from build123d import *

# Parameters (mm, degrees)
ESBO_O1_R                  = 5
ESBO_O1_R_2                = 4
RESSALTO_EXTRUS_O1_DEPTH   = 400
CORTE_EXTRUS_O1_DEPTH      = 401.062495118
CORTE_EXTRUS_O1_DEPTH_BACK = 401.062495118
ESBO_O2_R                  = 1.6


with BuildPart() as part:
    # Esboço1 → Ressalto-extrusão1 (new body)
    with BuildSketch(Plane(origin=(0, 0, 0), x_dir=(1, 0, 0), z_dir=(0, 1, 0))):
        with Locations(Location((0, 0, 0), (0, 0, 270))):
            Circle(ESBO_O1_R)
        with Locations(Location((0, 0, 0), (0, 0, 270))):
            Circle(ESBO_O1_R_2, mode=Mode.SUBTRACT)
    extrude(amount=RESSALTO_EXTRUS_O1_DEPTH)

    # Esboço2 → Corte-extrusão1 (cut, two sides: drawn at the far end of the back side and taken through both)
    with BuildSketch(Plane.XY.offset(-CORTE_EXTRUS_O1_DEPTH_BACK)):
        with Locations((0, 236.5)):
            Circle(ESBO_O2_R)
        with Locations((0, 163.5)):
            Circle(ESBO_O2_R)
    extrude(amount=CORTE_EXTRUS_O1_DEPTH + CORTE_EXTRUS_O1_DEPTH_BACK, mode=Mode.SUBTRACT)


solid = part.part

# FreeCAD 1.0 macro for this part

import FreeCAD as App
import Part
import Sketcher
from FreeCAD import Vector

doc = App.newDocument("Part")
body = doc.addObject("PartDesign::Body", "Body")

# Sketch on XZ plane
sketch1 = body.newObject("Sketcher::SketchObject", "Sketch")
sketch1.AttachmentSupport = (doc.getObject("XZ_Plane"), [""])
sketch1.MapMode = "FlatFace"
sketch1.addGeometry(Part.Circle(Vector(0, 0, 0), Vector(0, 0, 1), 5), False)
sketch1.addGeometry(Part.Circle(Vector(0, 0, 0), Vector(0, 0, 1), 4), False)
sketch1.addConstraint(Sketcher.Constraint("Coincident", 0, 3, -1, 1))
sketch1.addConstraint(Sketcher.Constraint("Coincident", 1, 3, -1, 1))
sketch1.addConstraint(Sketcher.Constraint("Diameter", 0, 10.0))
sketch1.addConstraint(Sketcher.Constraint("Diameter", 1, 8.0))
pad1 = body.newObject("PartDesign::Pad", "Pad")
pad1.Profile = sketch1
pad1.Length = 400
pad1.Reversed = True

# Sketch on XY plane
sketch2 = body.newObject("Sketcher::SketchObject", "Sketch001")
sketch2.AttachmentSupport = (doc.getObject("XY_Plane"), [""])
sketch2.MapMode = "FlatFace"
sketch2.addGeometry(Part.Circle(Vector(0, 236.5, 0), Vector(0, 0, 1), 1.6), False)
sketch2.addGeometry(Part.Circle(Vector(0, 163.5, 0), Vector(0, 0, 1), 1.6), False)
sketch2.addConstraint(Sketcher.Constraint("Equal", 0, 1))
sketch2.addConstraint(Sketcher.Constraint("PointOnObject", 0, 3, -2))
sketch2.addConstraint(Sketcher.Constraint("PointOnObject", 1, 3, -2))
sketch2.addConstraint(Sketcher.Constraint("Diameter", 0, 3.2))
sketch2.addConstraint(Sketcher.Constraint("DistanceY", 1, 3, 0, 3, 73.0))
sketch2.addConstraint(Sketcher.Constraint("DistanceY", -1, 1, 0, 3, 236.5))
pocket1 = body.newObject("PartDesign::Pocket", "Pocket")
pocket1.Profile = sketch2
pocket1.Type = "ThroughAll"
pocket1.Midplane = True

doc.recompute()
